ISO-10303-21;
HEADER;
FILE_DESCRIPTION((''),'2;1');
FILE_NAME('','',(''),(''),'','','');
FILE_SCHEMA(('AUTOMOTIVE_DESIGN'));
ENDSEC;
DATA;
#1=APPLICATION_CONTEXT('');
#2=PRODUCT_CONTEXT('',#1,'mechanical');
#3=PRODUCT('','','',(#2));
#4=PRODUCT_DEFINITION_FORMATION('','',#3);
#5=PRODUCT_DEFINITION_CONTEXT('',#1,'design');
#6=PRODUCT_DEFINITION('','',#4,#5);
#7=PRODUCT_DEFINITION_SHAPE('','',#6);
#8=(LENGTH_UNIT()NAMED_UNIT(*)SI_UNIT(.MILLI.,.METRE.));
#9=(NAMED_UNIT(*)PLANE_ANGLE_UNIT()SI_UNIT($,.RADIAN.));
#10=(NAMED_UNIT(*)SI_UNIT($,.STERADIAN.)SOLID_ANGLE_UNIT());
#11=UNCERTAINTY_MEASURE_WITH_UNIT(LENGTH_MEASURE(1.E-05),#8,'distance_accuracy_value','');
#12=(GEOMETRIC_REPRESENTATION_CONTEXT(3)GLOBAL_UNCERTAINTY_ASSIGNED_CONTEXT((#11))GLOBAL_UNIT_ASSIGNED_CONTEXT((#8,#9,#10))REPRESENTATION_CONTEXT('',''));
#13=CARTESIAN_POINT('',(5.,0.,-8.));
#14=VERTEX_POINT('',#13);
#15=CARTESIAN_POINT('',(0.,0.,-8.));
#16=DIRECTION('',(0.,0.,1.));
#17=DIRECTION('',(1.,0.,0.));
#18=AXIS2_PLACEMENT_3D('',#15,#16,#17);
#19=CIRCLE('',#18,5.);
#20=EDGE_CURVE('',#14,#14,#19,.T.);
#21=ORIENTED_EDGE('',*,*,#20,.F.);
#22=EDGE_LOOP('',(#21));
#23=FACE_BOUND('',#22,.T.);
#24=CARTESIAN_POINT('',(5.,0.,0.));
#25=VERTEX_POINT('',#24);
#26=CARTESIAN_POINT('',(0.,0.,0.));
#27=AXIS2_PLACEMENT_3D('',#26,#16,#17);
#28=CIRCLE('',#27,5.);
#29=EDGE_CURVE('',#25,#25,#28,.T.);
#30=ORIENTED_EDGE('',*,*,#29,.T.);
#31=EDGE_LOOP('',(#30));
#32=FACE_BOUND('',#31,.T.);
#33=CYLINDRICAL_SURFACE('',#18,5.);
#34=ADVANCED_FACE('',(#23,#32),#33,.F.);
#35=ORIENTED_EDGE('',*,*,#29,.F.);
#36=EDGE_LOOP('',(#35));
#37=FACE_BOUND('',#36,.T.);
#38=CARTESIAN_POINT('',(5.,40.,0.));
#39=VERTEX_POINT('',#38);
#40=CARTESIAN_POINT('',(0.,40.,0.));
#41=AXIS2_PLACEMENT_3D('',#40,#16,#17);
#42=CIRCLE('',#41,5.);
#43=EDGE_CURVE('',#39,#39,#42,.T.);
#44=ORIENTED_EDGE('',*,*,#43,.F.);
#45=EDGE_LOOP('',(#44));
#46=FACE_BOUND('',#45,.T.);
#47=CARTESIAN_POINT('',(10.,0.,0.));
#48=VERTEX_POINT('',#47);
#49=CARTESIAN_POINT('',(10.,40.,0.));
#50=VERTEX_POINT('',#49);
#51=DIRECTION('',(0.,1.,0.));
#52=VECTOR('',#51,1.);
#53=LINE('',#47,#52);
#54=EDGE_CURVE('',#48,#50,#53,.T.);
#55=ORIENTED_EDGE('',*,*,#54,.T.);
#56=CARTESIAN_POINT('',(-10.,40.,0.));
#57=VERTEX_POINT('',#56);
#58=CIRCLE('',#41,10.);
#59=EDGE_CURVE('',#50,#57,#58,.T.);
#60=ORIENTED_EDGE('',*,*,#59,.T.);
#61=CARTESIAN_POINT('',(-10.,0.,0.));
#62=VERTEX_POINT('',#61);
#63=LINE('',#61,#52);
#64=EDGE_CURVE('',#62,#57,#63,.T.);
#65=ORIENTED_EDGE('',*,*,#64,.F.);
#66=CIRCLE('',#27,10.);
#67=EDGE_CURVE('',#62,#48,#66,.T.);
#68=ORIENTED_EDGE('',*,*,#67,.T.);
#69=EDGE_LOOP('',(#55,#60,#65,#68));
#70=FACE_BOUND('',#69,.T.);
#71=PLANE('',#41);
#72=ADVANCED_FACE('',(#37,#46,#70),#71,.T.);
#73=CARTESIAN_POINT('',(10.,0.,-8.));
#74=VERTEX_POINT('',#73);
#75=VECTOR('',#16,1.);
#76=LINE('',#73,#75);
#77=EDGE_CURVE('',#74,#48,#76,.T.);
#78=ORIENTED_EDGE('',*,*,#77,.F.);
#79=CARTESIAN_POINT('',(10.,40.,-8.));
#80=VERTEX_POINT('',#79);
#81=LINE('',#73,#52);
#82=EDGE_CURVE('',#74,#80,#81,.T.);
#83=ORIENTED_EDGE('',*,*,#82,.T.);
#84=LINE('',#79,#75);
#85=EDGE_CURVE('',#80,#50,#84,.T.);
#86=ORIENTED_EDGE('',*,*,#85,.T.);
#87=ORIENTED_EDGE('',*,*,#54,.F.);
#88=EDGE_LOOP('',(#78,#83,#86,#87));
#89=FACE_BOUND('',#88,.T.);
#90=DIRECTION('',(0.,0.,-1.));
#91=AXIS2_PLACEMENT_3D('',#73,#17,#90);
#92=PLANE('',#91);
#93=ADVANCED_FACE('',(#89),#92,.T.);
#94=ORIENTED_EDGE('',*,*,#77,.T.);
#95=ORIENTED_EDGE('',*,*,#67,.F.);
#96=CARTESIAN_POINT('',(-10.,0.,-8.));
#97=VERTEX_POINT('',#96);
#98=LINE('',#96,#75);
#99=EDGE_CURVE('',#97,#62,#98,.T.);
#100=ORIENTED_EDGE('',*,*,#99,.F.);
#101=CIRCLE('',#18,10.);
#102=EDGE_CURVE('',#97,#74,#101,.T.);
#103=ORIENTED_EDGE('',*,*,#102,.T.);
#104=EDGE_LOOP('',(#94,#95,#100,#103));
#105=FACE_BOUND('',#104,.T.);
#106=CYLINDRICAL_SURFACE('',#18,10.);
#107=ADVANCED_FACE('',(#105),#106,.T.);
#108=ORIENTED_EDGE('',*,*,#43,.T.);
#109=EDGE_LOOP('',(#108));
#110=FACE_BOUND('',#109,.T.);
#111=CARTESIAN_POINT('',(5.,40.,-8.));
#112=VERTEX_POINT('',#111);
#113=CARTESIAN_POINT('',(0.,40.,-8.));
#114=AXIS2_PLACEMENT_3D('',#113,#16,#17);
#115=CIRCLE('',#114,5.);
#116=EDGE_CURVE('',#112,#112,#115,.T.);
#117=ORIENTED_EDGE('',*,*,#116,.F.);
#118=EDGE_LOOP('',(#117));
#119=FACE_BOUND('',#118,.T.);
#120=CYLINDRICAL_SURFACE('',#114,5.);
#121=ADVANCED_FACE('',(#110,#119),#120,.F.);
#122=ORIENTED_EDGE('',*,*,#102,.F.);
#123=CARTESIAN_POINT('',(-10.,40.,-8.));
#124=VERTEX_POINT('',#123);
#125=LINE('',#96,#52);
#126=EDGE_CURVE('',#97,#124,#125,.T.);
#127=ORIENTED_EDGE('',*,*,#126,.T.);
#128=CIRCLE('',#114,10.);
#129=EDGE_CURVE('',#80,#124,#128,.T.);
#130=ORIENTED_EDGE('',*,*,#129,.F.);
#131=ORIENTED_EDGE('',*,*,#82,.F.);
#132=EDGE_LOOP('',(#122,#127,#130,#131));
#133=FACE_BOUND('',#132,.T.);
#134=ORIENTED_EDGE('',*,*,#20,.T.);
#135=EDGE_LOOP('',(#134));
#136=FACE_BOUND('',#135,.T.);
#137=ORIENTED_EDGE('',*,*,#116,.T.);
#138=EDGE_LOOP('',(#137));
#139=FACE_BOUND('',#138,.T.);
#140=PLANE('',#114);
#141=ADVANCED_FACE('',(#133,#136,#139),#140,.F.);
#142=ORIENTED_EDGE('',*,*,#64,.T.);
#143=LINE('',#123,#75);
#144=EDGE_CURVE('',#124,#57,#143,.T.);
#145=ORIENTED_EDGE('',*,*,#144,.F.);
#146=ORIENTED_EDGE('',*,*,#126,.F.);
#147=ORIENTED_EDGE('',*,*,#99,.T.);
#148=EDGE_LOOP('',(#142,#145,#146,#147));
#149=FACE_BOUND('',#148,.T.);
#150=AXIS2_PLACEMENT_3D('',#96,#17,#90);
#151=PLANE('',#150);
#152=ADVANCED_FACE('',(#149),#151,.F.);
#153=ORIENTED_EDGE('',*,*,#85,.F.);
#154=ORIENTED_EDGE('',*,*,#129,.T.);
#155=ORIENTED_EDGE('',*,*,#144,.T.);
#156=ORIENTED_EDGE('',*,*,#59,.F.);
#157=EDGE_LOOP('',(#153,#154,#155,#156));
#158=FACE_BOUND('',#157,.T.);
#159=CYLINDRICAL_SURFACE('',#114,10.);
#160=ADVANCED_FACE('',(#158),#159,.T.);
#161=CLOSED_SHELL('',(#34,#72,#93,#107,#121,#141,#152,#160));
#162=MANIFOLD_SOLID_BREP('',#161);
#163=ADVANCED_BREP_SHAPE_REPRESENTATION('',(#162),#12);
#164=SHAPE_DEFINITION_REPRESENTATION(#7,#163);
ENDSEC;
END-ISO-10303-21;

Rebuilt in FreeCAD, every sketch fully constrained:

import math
import FreeCAD as App
import Part
import Sketcher

V = App.Vector
Q = App.Units.Quantity

doc = App.newDocument("Part")
body = doc.addObject("PartDesign::Body", "Body")

# Sketch on XY plane
sketch1 = doc.addObject("Sketcher::SketchObject", "Sketch")
body.addObject(sketch1)
sketch1.AttachmentSupport = (doc.XY_Plane, [""])
sketch1.MapMode = "FlatFace"
sketch1.addGeometry([
    Part.LineSegment(V(10, 0, 0), V(10, 40, 0)),  # 0
    Part.ArcOfCircle(Part.Circle(V(0, 40, 0), V(0, 0, 1), 10), math.radians(0), math.radians(180)),  # 1
    Part.LineSegment(V(-10, 40, 0), V(-10, 0, 0)),  # 2
    Part.ArcOfCircle(Part.Circle(V(0, 0, 0), V(0, 0, 1), 10), math.radians(180), math.radians(360)),  # 3
    Part.Circle(V(0, 0, 0), V(0, 0, 1), 5),  # 4
    Part.Circle(V(0, 40, 0), V(0, 0, 1), 5),  # 5
], False)
sketch1.addConstraint([
    Sketcher.Constraint("Tangent", 0, 2, 1, 1),
    Sketcher.Constraint("Tangent", 1, 2, 2, 1),
    Sketcher.Constraint("Tangent", 2, 2, 3, 1),
    Sketcher.Constraint("Tangent", 3, 2, 0, 1),
    Sketcher.Constraint("Vertical", 0),
    Sketcher.Constraint("Vertical", 2),
    Sketcher.Constraint("Coincident", 3, 3, -1, 1),
    Sketcher.Constraint("Coincident", 4, 3, -1, 1),
    Sketcher.Constraint("Coincident", 5, 3, 1, 3),
    Sketcher.Constraint("Equal", 4, 5),
    Sketcher.Constraint("Diameter", 4, Q("10 mm")),
    Sketcher.Constraint("Radius", 1, Q("10 mm")),
    Sketcher.Constraint("DistanceY", 0, 1, 0, 2, Q("40 mm")),
])
pad1 = doc.addObject("PartDesign::Pad", "Pad")
body.addObject(pad1)
pad1.Profile = sketch1
pad1.Length = 8
pad1.Reversed = True

doc.recompute()
